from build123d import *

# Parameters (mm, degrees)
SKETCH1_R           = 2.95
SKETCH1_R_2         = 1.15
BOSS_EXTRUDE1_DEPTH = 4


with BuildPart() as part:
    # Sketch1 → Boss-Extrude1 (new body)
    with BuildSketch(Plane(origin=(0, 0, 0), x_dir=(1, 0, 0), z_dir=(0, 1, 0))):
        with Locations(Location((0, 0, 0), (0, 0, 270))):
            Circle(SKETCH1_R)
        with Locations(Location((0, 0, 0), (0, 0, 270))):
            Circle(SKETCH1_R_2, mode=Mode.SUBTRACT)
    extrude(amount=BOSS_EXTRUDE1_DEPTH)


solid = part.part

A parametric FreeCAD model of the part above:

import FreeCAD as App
import Part
import Sketcher
from FreeCAD import Vector
Q = App.Units.Quantity

doc = App.newDocument("Part")
params = doc.addObject("Spreadsheet::Sheet", "Params")
for row, (alias, value) in enumerate([
    ("sketch1_diameter", "5.9 mm"),
    ("sketch1_diameter2", "2.3 mm"),
    ("pad1_length", "4 mm"),
], start=1):
    params.set(f"A{row}", alias)
    params.set(f"B{row}", "=" + value)
    params.setAlias(f"B{row}", alias)

body = doc.addObject("PartDesign::Body", "Body")

# Sketch on XZ plane
sketch1 = body.newObject("Sketcher::SketchObject", "Sketch")
sketch1.AttachmentSupport = (doc.getObject("XZ_Plane"), [""])
sketch1.MapMode = "FlatFace"
sketch1.addGeometry(Part.Circle(Vector(0, 0, 0), Vector(0, 0, 1), 3), False)
sketch1.addGeometry(Part.Circle(Vector(0, 0, 0), Vector(0, 0, 1), 1.1), False)
sketch1.addConstraint(Sketcher.Constraint("Coincident", 0, 3, -1, 1))
sketch1.addConstraint(Sketcher.Constraint("Coincident", 1, 3, -1, 1))
sketch1.addConstraint(Sketcher.Constraint("Diameter", 0, Q("5.9 mm")))
sketch1.addConstraint(Sketcher.Constraint("Diameter", 1, Q("2.3 mm")))
sketch1.setExpression("Constraints[2]", "Params.sketch1_diameter")
sketch1.setExpression("Constraints[3]", "Params.sketch1_diameter2")
pad1 = body.newObject("PartDesign::Pad", "Pad")
pad1.Profile = sketch1
pad1.setExpression("Length", "Params.pad1_length")
pad1.Reversed = True

doc.recompute()
